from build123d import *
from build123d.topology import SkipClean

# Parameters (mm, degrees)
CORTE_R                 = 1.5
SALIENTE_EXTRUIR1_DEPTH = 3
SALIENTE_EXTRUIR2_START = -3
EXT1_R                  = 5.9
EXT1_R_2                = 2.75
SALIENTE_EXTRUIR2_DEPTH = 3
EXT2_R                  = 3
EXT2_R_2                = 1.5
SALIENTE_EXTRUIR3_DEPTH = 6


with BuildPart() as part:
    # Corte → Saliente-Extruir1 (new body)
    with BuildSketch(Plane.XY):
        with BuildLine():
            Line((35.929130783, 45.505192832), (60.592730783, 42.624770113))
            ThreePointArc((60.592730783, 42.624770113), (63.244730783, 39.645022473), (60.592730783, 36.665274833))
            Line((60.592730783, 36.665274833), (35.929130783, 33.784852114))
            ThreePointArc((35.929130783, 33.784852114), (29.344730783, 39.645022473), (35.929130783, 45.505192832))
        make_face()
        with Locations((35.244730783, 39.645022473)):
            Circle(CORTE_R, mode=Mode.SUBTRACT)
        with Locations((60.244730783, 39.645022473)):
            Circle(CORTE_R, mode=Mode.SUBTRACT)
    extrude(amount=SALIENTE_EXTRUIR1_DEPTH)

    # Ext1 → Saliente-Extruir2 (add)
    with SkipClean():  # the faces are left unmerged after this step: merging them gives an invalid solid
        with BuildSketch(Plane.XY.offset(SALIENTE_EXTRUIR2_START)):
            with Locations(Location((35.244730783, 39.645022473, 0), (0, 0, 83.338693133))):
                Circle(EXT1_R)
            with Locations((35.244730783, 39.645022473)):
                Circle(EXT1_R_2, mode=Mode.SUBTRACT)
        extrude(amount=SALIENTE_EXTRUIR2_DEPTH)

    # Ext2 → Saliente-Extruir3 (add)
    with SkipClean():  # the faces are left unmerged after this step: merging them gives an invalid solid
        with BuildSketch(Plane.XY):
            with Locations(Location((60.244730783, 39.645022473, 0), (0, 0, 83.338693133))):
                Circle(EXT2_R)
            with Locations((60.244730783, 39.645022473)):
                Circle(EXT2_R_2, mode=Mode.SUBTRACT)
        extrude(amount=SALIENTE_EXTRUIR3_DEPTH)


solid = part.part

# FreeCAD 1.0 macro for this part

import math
import FreeCAD as App
import Part
import Sketcher
Q = App.Units.Quantity

doc = App.newDocument("Part")
body = doc.addObject("PartDesign::Body", "Body")

# Sketch on XY plane
sketch1 = doc.addObject("Sketcher::SketchObject", "Sketch")
body.addObject(sketch1)
sketch1.AttachmentSupport = (doc.XY_Plane, [""])
sketch1.MapMode = "FlatFace"
sketch1.addGeometry([
    Part.LineSegment(App.Vector(60.6, 42.6, 0), App.Vector(35.9, 45.5, 0)),  # 0
    Part.ArcOfCircle(Part.Circle(App.Vector(35.2, 39.6, 0), App.Vector(0, 0, 1), 5.9), math.radians(83), math.radians(277)),  # 1
    Part.LineSegment(App.Vector(35.9, 33.8, 0), App.Vector(60.6, 36.7, 0)),  # 2
    Part.ArcOfCircle(Part.Circle(App.Vector(60.2, 39.6, 0), App.Vector(0, 0, 1), 3), math.radians(-83), math.radians(83)),  # 3
    Part.Circle(App.Vector(60.2, 39.6, 0), App.Vector(0, 0, 1), 1.5),  # 4
    Part.Circle(App.Vector(35.2, 39.6, 0), App.Vector(0, 0, 1), 1.5),  # 5
], False)
sketch1.addConstraint([
    Sketcher.Constraint("Tangent", 0, 2, 1, 1),
    Sketcher.Constraint("Tangent", 1, 2, 2, 1),
    Sketcher.Constraint("Tangent", 2, 2, 3, 1),
    Sketcher.Constraint("Tangent", 3, 2, 0, 1),
    Sketcher.Constraint("Coincident", 4, 3, 3, 3),
    Sketcher.Constraint("Coincident", 5, 3, 1, 3),
    Sketcher.Constraint("Equal", 4, 5),
    Sketcher.Constraint("Horizontal", 1, 3, 3, 3),
    Sketcher.Constraint("Diameter", 4, Q("3 mm")),
    Sketcher.Constraint("Radius", 3, Q("3 mm")),
    Sketcher.Constraint("Radius", 1, Q("5.9 mm")),
    Sketcher.Constraint("DistanceX", 1, 3, 3, 3, Q("25 mm")),
    Sketcher.Constraint("DistanceX", -1, 1, 1, 3, Q("35.244731 mm")),
    Sketcher.Constraint("DistanceY", -1, 1, 3, 2, Q("42.62477 mm")),
])
pad1 = doc.addObject("PartDesign::Pad", "Pad")
body.addObject(pad1)
pad1.Profile = sketch1
pad1.Length = 3

# Sketch on XY plane
sketch2 = doc.addObject("Sketcher::SketchObject", "Sketch001")
body.addObject(sketch2)
sketch2.AttachmentSupport = (doc.XY_Plane, [""])
sketch2.MapMode = "FlatFace"
sketch2.AttachmentOffset = App.Placement(App.Vector(0, 0, -3), App.Rotation())
sketch2.addGeometry([
    Part.Circle(App.Vector(35.2, 39.6, 0), App.Vector(0, 0, 1), 5.9),
    Part.Circle(App.Vector(35.2, 39.6, 0), App.Vector(0, 0, 1), 2.8),
], False)
sketch2.addConstraint([
    Sketcher.Constraint("Coincident", 1, 3, 0, 3),
    Sketcher.Constraint("Diameter", 0, Q("11.8 mm")),
    Sketcher.Constraint("Diameter", 1, Q("5.5 mm")),
    Sketcher.Constraint("DistanceX", -1, 1, 0, 3, Q("35.244731 mm")),
    Sketcher.Constraint("DistanceY", -1, 1, 0, 3, Q("39.645022 mm")),
])
pad2 = doc.addObject("PartDesign::Pad", "Pad001")
body.addObject(pad2)
pad2.Profile = sketch2
pad2.Length = 3

# Sketch on XY plane
sketch3 = doc.addObject("Sketcher::SketchObject", "Sketch002")
body.addObject(sketch3)
sketch3.AttachmentSupport = (doc.XY_Plane, [""])
sketch3.MapMode = "FlatFace"
sketch3.addGeometry([
    Part.Circle(App.Vector(60.2, 39.6, 0), App.Vector(0, 0, 1), 3),
    Part.Circle(App.Vector(60.2, 39.6, 0), App.Vector(0, 0, 1), 1.5),
], False)
sketch3.addConstraint([
    Sketcher.Constraint("Coincident", 1, 3, 0, 3),
    Sketcher.Constraint("Diameter", 0, Q("6 mm")),
    Sketcher.Constraint("Diameter", 1, Q("3 mm")),
    Sketcher.Constraint("DistanceX", -1, 1, 0, 3, Q("60.244731 mm")),
    Sketcher.Constraint("DistanceY", -1, 1, 0, 3, Q("39.645022 mm")),
])
pad3 = doc.addObject("PartDesign::Pad", "Pad002")
body.addObject(pad3)
pad3.Profile = sketch3
pad3.Length = 6

doc.recompute()
